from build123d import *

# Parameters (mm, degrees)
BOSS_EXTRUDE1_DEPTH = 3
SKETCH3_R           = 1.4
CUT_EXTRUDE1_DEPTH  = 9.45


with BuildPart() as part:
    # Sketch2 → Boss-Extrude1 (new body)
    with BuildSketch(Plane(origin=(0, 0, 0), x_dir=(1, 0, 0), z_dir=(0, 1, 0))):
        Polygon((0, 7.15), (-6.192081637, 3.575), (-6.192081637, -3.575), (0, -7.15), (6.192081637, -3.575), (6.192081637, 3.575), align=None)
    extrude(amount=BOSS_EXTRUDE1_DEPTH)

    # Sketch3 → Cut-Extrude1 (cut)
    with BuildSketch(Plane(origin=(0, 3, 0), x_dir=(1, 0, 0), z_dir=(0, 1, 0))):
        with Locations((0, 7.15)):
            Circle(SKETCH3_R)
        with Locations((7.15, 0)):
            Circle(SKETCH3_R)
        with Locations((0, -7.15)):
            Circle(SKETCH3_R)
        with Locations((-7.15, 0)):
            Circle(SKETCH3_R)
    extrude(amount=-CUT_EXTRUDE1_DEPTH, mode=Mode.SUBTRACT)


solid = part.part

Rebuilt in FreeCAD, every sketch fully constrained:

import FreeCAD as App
import Part
import Sketcher

V = App.Vector
Q = App.Units.Quantity


def add_polygon(sketch, points):
    """Adds a closed chain of lines whose ends are joined by coincident constraints."""
    first, n = sketch.GeometryCount, len(points)
    for a, b in zip(points, points[1:] + points[:1]):
        sketch.addGeometry(Part.LineSegment(App.Vector(*a, 0), App.Vector(*b, 0)), False)
    for i in range(n):
        sketch.addConstraint(Sketcher.Constraint("Coincident", first + i, 2, first + (i + 1) % n, 1))

doc = App.newDocument("Part")
body = doc.addObject("PartDesign::Body", "Body")

sketch1 = body.newObject("Sketcher::SketchObject", "Sketch")
sketch1.AttachmentSupport = (doc.getObject("XZ_Plane"), [""])
sketch1.MapMode = "FlatFace"
add_polygon(sketch1, [(0, -7), (-6, -4), (-6, 4), (0, 7), (6, 4), (6, -4)])
sketch1.addConstraint([
    Sketcher.Constraint("Vertical", 1),
    Sketcher.Constraint("Vertical", 4),
    Sketcher.Constraint("Symmetric", 0, 2, 3, 2, -1, 1),
    Sketcher.Constraint("Symmetric", 2, 2, 5, 2, -1, 1),
    Sketcher.Constraint("PointOnObject", 2, 2, -2),
    Sketcher.Constraint("Parallel", 2, 5),
    Sketcher.Constraint("Horizontal", 1, 2, 3, 2),
    Sketcher.Constraint("Angle", 0, Q("150 deg")),
    Sketcher.Constraint("DistanceY", 1, 1, 1, 2, Q("7.15 mm")),
    Sketcher.Constraint("DistanceY", 5, 2, 2, 2, Q("14.3 mm")),
])
pad1 = body.newObject("PartDesign::Pad", "Pad")
pad1.Profile = sketch1
pad1.Length = 3
pad1.Reversed = True

sketch2 = body.newObject("Sketcher::SketchObject", "Sketch001")
sketch2.AttachmentSupport = (doc.getObject("XZ_Plane"), [""])
sketch2.MapMode = "FlatFace"
sketch2.AttachmentOffset = App.Placement(V(0, 0, -3), App.Rotation())
sketch2.addGeometry([
    Part.Circle(V(0, -7.2, 0), V(0, 0, 1), 1.4),
    Part.Circle(V(7.2, 0, 0), V(0, 0, 1), 1.4),
    Part.Circle(V(0, 7.2, 0), V(0, 0, 1), 1.4),
    Part.Circle(V(-7.2, 0, 0), V(0, 0, 1), 1.4),
], False)
sketch2.addConstraint([
    Sketcher.Constraint("Equal", 0, 1),
    Sketcher.Constraint("Equal", 1, 2),
    Sketcher.Constraint("Equal", 2, 3),
    Sketcher.Constraint("Symmetric", 0, 3, 2, 3, -1, 1),
    Sketcher.Constraint("Symmetric", 1, 3, 3, 3, -1, 1),
    Sketcher.Constraint("PointOnObject", 0, 3, -2),
    Sketcher.Constraint("PointOnObject", 1, 3, -1),
    Sketcher.Constraint("Diameter", 0, Q("2.8 mm")),
    Sketcher.Constraint("DistanceY", 0, 3, 2, 3, Q("14.3 mm")),
    Sketcher.Constraint("DistanceX", 3, 3, 1, 3, Q("14.3 mm")),
])
pocket1 = body.newObject("PartDesign::Pocket", "Pocket")
pocket1.Profile = sketch2
pocket1.Length = 9.45
pocket1.Reversed = True

doc.recompute()
